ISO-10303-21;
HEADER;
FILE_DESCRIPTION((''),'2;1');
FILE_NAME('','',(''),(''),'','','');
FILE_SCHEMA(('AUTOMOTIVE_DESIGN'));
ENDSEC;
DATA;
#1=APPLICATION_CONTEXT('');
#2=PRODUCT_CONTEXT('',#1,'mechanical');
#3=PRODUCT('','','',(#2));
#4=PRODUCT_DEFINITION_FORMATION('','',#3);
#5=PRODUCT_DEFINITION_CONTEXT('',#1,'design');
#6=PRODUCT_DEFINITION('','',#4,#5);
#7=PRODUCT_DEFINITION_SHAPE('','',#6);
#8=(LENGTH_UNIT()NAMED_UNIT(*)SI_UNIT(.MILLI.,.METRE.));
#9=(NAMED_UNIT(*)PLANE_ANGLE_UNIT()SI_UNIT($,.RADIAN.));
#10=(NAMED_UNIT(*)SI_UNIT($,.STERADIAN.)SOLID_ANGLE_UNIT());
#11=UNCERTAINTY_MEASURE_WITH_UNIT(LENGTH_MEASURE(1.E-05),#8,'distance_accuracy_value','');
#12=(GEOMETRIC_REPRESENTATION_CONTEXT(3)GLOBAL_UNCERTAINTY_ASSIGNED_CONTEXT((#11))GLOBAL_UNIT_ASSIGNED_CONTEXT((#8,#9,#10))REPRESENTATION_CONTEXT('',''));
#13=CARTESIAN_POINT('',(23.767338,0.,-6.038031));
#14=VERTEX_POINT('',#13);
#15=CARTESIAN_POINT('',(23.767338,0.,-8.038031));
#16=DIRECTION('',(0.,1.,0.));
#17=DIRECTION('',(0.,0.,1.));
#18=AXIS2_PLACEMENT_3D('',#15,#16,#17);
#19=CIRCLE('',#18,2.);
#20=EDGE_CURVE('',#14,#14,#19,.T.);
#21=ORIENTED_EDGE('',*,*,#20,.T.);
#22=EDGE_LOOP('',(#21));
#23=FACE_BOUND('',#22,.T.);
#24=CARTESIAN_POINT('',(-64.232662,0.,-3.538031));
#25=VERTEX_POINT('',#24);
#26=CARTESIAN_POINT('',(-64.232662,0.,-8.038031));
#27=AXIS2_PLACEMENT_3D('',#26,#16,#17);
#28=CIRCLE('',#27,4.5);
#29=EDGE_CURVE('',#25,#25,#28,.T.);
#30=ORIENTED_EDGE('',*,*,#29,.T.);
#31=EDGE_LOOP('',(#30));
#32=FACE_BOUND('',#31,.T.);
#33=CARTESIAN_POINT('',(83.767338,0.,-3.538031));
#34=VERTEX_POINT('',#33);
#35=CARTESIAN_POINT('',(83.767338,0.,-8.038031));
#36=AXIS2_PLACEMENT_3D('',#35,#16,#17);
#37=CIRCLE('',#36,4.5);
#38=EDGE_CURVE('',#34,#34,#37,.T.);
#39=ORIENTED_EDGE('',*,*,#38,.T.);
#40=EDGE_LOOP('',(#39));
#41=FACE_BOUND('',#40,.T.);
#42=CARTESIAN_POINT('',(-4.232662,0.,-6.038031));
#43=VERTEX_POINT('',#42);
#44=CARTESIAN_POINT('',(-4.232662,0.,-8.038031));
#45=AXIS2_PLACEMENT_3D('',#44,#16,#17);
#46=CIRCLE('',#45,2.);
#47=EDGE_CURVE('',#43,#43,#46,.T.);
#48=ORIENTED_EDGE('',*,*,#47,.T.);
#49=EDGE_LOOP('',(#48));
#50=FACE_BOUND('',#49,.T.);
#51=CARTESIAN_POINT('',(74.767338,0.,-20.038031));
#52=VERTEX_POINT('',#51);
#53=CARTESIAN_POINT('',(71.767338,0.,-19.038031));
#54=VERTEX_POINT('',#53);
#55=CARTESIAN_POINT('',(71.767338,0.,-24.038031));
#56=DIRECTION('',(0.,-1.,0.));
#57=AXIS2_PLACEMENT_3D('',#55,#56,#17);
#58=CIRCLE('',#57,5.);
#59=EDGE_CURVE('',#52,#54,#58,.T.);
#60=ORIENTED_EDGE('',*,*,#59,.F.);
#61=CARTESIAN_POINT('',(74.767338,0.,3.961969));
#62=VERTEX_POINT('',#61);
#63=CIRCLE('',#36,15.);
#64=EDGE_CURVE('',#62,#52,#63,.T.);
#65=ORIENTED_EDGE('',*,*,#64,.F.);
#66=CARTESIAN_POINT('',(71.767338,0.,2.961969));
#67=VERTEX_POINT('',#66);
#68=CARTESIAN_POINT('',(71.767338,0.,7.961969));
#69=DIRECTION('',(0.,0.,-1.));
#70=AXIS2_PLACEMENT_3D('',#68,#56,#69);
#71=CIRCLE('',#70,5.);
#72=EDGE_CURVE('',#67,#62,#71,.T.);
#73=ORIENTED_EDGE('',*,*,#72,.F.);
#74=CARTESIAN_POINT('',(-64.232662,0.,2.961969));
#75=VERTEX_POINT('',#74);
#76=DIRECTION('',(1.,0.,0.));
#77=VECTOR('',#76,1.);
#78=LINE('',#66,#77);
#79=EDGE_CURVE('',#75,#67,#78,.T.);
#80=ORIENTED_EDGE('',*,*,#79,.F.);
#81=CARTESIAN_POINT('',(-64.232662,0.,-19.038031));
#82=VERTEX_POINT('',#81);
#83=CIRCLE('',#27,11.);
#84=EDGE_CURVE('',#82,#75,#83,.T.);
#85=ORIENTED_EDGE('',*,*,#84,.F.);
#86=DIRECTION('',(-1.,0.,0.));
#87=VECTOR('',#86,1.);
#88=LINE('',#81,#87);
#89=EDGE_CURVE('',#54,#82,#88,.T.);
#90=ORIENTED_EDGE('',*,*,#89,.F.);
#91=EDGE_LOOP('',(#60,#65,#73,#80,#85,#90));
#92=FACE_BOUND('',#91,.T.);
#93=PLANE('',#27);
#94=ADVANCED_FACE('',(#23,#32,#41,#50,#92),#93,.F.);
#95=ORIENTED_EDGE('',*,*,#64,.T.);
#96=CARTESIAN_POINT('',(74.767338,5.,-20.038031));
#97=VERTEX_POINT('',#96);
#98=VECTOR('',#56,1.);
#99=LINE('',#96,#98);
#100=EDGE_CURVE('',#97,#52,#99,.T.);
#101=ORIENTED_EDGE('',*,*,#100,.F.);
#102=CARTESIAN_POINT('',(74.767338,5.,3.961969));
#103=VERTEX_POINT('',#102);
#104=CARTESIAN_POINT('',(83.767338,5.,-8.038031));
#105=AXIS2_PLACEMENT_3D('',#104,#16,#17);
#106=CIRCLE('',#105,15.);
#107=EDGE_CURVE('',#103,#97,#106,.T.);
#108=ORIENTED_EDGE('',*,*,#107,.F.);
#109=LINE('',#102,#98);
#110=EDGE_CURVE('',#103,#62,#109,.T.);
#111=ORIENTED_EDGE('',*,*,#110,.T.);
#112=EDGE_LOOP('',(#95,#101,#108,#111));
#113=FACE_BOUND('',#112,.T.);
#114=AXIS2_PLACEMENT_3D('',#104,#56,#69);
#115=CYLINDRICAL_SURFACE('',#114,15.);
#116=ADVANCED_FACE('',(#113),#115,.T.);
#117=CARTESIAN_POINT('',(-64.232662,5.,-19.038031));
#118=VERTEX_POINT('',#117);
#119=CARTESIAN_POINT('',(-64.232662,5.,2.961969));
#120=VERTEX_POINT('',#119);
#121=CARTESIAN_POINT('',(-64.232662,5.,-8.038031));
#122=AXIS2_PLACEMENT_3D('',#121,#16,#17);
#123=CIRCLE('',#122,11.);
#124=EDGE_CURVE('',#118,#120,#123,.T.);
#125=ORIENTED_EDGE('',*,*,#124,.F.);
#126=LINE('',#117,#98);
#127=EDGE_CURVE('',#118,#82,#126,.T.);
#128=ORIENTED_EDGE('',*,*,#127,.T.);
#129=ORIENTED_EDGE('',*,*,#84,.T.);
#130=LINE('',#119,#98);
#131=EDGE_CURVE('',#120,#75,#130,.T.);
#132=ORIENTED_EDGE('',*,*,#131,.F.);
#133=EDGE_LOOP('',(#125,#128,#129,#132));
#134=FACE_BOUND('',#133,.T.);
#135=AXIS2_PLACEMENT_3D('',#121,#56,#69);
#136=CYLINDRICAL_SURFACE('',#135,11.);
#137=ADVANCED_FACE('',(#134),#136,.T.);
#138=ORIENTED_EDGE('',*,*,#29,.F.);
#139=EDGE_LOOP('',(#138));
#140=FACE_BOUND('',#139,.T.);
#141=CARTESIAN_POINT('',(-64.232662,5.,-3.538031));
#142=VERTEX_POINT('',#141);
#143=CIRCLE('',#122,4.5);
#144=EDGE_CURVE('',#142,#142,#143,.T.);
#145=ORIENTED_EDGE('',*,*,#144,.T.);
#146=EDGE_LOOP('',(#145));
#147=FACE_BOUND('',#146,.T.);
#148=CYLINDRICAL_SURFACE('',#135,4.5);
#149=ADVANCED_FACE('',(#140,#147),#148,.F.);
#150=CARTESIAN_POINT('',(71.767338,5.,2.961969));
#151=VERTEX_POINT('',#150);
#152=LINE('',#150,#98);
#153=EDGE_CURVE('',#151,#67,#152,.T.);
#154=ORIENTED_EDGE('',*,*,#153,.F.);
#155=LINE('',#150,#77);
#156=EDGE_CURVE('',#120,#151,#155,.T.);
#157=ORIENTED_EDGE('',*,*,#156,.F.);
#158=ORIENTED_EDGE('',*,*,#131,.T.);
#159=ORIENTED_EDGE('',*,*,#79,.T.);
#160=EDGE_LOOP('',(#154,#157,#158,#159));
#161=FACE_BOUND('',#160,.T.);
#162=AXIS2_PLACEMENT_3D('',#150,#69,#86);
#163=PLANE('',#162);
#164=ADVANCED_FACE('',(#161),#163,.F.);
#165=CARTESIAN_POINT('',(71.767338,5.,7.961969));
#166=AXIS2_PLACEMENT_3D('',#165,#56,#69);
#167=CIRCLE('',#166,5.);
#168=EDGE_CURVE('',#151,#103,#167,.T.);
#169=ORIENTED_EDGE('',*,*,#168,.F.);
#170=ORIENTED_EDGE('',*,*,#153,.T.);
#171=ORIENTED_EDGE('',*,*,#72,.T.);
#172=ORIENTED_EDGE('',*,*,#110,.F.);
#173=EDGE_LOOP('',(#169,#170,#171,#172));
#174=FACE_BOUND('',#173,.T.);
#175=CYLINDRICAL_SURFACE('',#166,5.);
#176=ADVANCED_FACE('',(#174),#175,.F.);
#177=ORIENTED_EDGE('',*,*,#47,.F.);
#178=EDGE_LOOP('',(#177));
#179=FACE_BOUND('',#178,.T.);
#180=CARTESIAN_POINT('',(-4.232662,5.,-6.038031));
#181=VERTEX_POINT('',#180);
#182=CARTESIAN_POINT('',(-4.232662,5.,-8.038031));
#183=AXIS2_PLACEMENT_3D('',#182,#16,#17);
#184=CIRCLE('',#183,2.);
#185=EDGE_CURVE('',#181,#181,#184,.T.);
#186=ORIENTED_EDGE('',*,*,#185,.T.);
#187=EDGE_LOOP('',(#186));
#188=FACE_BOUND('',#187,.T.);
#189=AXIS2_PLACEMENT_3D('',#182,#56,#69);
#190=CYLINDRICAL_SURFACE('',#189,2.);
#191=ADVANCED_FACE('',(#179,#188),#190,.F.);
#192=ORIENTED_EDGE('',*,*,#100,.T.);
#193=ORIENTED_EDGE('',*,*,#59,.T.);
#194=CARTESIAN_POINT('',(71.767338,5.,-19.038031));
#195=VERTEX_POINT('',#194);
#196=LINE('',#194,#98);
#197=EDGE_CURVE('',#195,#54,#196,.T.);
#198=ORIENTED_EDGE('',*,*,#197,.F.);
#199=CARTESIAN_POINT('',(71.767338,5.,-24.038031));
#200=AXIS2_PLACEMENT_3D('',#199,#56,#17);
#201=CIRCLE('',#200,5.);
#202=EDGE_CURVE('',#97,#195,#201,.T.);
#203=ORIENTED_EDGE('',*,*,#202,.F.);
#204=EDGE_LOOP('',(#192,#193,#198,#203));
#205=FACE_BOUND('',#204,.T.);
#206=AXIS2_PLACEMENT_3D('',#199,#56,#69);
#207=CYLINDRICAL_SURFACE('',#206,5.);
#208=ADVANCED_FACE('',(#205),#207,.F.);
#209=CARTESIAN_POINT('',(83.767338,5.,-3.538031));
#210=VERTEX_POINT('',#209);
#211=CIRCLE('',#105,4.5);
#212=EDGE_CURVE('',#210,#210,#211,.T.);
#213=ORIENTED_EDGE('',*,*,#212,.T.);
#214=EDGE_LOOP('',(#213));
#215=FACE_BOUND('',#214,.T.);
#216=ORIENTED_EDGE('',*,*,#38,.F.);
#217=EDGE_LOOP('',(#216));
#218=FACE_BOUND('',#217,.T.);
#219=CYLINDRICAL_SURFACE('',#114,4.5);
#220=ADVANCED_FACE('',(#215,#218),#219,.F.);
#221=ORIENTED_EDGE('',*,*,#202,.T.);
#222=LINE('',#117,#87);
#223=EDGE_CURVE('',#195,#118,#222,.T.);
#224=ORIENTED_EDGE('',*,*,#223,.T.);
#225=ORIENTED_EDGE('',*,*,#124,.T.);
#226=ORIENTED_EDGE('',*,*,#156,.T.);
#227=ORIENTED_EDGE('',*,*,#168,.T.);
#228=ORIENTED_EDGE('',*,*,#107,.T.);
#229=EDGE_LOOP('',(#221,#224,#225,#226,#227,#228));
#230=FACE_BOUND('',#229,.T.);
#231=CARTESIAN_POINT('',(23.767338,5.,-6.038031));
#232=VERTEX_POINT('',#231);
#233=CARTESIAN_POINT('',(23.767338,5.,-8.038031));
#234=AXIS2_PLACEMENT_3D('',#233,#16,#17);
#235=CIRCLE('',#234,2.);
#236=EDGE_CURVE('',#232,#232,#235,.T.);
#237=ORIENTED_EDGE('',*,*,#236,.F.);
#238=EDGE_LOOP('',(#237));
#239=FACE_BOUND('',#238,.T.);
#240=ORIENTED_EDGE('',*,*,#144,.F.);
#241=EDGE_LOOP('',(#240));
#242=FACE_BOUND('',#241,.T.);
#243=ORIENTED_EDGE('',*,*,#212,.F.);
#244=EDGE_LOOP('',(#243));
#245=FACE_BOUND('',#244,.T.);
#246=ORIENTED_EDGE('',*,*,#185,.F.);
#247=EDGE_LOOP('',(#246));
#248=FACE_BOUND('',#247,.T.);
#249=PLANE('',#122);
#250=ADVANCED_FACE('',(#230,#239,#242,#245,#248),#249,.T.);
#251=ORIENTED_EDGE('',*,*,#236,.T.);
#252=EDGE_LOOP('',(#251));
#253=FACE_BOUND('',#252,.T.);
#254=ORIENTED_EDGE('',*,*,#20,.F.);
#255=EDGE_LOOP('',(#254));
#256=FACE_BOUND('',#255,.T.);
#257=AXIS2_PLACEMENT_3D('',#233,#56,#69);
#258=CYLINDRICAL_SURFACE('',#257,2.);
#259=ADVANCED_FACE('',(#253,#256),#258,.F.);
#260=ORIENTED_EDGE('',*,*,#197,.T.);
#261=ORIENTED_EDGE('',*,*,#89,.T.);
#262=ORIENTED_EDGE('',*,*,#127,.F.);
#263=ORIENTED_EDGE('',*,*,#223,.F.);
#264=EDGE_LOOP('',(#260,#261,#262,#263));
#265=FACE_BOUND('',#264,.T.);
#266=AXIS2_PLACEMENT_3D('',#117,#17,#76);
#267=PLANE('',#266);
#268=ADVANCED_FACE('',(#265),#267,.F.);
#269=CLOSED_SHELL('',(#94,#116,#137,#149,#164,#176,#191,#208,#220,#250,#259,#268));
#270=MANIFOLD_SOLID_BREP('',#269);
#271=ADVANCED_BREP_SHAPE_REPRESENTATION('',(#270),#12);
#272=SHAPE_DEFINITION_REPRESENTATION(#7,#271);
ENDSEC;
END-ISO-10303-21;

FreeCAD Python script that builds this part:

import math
import FreeCAD as App
import Part
import Sketcher
from FreeCAD import Vector

doc = App.newDocument("Part")
body = doc.addObject("PartDesign::Body", "Body")

# Sketch on XZ plane
sketch1 = body.newObject("Sketcher::SketchObject", "Sketch")
sketch1.AttachmentSupport = (doc.getObject("XZ_Plane"), [""])
sketch1.MapMode = "FlatFace"
sketch1.addGeometry([
    Part.LineSegment(Vector(71.8, -19, 0), Vector(-64.2, -19, 0)),  # 0
    Part.ArcOfCircle(Part.Circle(Vector(-64.2, -8, 0), Vector(0, 0, 1), 11), math.radians(90), math.radians(270)),  # 1
    Part.LineSegment(Vector(-64.2, 3, 0), Vector(71.8, 3, 0)),  # 2
    Part.ArcOfCircle(Part.Circle(Vector(71.8, 8, 0), Vector(0, 0, 1), 5), math.radians(-90), math.radians(-53)),  # 3
    Part.ArcOfCircle(Part.Circle(Vector(83.8, -8, 0), Vector(0, 0, 1), 15), math.radians(-127), math.radians(127)),  # 4
    Part.ArcOfCircle(Part.Circle(Vector(71.8, -24, 0), Vector(0, 0, 1), 5), math.radians(53), math.radians(90)),  # 5
    Part.Circle(Vector(83.8, -8, 0), Vector(0, 0, 1), 4.5),  # 6
    Part.Circle(Vector(23.8, -8, 0), Vector(0, 0, 1), 2),  # 7
    Part.Circle(Vector(-4.2, -8, 0), Vector(0, 0, 1), 2),  # 8
    Part.Circle(Vector(-64.2, -8, 0), Vector(0, 0, 1), 4.5),  # 9
], False)
sketch1.addConstraint([
    Sketcher.Constraint("Tangent", 0, 2, 1, 2),
    Sketcher.Constraint("Tangent", 1, 1, 2, 1),
    Sketcher.Constraint("Tangent", 2, 2, 3, 1),
    Sketcher.Constraint("Tangent", 3, 2, 4, 2),
    Sketcher.Constraint("Tangent", 4, 1, 5, 1),
    Sketcher.Constraint("Tangent", 5, 2, 0, 1),
    Sketcher.Constraint("Horizontal", 0),
    Sketcher.Constraint("Horizontal", 2),
    Sketcher.Constraint("Coincident", 6, 3, 4, 3),
    Sketcher.Constraint("Coincident", 9, 3, 1, 3),
    Sketcher.Constraint("Equal", 3, 5),
    Sketcher.Constraint("Equal", 7, 8),
    Sketcher.Constraint("Equal", 6, 9),
    Sketcher.Constraint("Horizontal", 1, 3, 4, 3),
    Sketcher.Constraint("Horizontal", 6, 3, 7, 3),
    Sketcher.Constraint("Horizontal", 7, 3, 8, 3),
    Sketcher.Constraint("Diameter", 6, 9.0),
    Sketcher.Constraint("Diameter", 7, 4.0),
    Sketcher.Constraint("Radius", 1, 11.0),
    Sketcher.Constraint("Radius", 3, 5.0),
    Sketcher.Constraint("Radius", 4, 15.0),
    Sketcher.Constraint("DistanceX", 0, 2, 0, 1, 136.0),
    Sketcher.Constraint("DistanceX", 7, 3, 3, 3, 48.0),
    Sketcher.Constraint("DistanceX", 8, 3, 7, 3, 28.0),
    Sketcher.Constraint("DistanceY", 1, 3, -1, 1, 8.038031),
    Sketcher.Constraint("DistanceX", 1, 3, -1, 1, 64.232662),
])
pad1 = body.newObject("PartDesign::Pad", "Pad")
pad1.Profile = sketch1
pad1.Length = 5
pad1.Reversed = True

doc.recompute()
